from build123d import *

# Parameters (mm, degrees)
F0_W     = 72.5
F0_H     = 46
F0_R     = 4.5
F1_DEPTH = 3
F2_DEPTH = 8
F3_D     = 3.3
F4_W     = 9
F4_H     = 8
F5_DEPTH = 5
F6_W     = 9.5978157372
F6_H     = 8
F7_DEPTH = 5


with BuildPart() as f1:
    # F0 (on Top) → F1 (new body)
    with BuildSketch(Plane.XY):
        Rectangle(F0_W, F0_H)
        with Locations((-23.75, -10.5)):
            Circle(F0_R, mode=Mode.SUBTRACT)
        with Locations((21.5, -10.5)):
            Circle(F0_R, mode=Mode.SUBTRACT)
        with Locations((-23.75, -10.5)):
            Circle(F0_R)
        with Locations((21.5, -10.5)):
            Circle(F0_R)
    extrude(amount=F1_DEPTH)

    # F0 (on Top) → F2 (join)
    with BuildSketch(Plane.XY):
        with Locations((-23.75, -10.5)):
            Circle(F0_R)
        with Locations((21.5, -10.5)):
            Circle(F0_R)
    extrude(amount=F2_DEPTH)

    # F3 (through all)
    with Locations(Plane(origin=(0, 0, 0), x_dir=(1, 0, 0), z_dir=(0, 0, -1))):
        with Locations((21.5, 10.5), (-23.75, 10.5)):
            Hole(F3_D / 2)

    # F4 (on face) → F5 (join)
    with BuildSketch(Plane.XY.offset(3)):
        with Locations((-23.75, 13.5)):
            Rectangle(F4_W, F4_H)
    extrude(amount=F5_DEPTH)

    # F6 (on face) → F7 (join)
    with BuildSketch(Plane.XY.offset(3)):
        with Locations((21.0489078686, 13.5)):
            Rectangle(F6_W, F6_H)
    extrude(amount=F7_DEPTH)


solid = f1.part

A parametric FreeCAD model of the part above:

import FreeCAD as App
import Part
import Sketcher
from FreeCAD import Vector

doc = App.newDocument("Part")
body = doc.addObject("PartDesign::Body", "Body")

sketch1 = body.newObject("Sketcher::SketchObject", "Sketch")
sketch1.AttachmentSupport = (doc.getObject("XY_Plane"), [""])
sketch1.MapMode = "FlatFace"
sketch1.addGeometry(Part.LineSegment(Vector(-36, 23, 0), Vector(-36, -23, 0)), False)
sketch1.addGeometry(Part.LineSegment(Vector(-36, -23, 0), Vector(36, -23, 0)), False)
sketch1.addGeometry(Part.LineSegment(Vector(36, -23, 0), Vector(36, 23, 0)), False)
sketch1.addGeometry(Part.LineSegment(Vector(36, 23, 0), Vector(-36, 23, 0)), False)
sketch1.addConstraint(Sketcher.Constraint("Coincident", 0, 2, 1, 1))
sketch1.addConstraint(Sketcher.Constraint("Coincident", 1, 2, 2, 1))
sketch1.addConstraint(Sketcher.Constraint("Coincident", 2, 2, 3, 1))
sketch1.addConstraint(Sketcher.Constraint("Coincident", 3, 2, 0, 1))
sketch1.addConstraint(Sketcher.Constraint("Vertical", 0))
sketch1.addConstraint(Sketcher.Constraint("Horizontal", 1))
sketch1.addConstraint(Sketcher.Constraint("Vertical", 2))
sketch1.addConstraint(Sketcher.Constraint("Horizontal", 3))
sketch1.addConstraint(Sketcher.Constraint("Symmetric", 0, 2, 2, 2, -1, 1))
sketch1.addConstraint(Sketcher.Constraint("DistanceY", 0, 2, 0, 1, 46.0))
sketch1.addConstraint(Sketcher.Constraint("DistanceX", 1, 1, 1, 2, 72.5))
pad1 = body.newObject("PartDesign::Pad", "Pad")
pad1.Profile = sketch1
pad1.Length = 3

sketch2 = body.newObject("Sketcher::SketchObject", "Sketch001")
sketch2.AttachmentSupport = (doc.getObject("XY_Plane"), [""])
sketch2.MapMode = "FlatFace"
sketch2.addGeometry(Part.Circle(Vector(-23.8, -10.5, 0), Vector(0, 0, 1), 4.5), False)
sketch2.addGeometry(Part.Circle(Vector(21.5, -10.5, 0), Vector(0, 0, 1), 4.5), False)
sketch2.addConstraint(Sketcher.Constraint("Equal", 0, 1))
sketch2.addConstraint(Sketcher.Constraint("Horizontal", 0, 3, 1, 3))
sketch2.addConstraint(Sketcher.Constraint("Diameter", 0, 9.0))
sketch2.addConstraint(Sketcher.Constraint("DistanceY", 0, 3, -1, 1, 10.5))
sketch2.addConstraint(Sketcher.Constraint("DistanceX", -1, 1, 1, 3, 21.5))
sketch2.addConstraint(Sketcher.Constraint("DistanceX", 0, 3, -1, 1, 23.75))
pad2 = body.newObject("PartDesign::Pad", "Pad001")
pad2.Profile = sketch2
pad2.Length = 8

sketch3 = body.newObject("Sketcher::SketchObject", "Sketch002")
sketch3.AttachmentSupport = (doc.getObject("XY_Plane"), [""])
sketch3.MapMode = "FlatFace"
sketch3.addGeometry(Part.Circle(Vector(21.5, -10.5, 0), Vector(0, 0, 1), 1.6), False)
sketch3.addGeometry(Part.Circle(Vector(-23.8, -10.5, 0), Vector(0, 0, 1), 1.6), False)
sketch3.addConstraint(Sketcher.Constraint("Equal", 0, 1))
sketch3.addConstraint(Sketcher.Constraint("Horizontal", 0, 3, 1, 3))
sketch3.addConstraint(Sketcher.Constraint("Diameter", 0, 3.3))
sketch3.addConstraint(Sketcher.Constraint("DistanceX", -1, 1, 0, 3, 21.5))
sketch3.addConstraint(Sketcher.Constraint("DistanceY", 0, 3, -1, 1, 10.5))
sketch3.addConstraint(Sketcher.Constraint("DistanceX", 1, 3, -1, 1, 23.75))
doc.recompute()
hole = body.newObject("PartDesign::Hole", "Hole")
hole.Profile = sketch3
hole.ThreadType = "None"
hole.Diameter = 3.3
hole.DepthType = "ThroughAll"
hole.Reversed = True

sketch4 = body.newObject("Sketcher::SketchObject", "Sketch003")
sketch4.AttachmentSupport = (doc.getObject("XY_Plane"), [""])
sketch4.MapMode = "FlatFace"
sketch4.AttachmentOffset = App.Placement(Vector(0, 0, 3), App.Rotation())
sketch4.addGeometry(Part.LineSegment(Vector(-28, 18, 0), Vector(-28, 10, 0)), False)
sketch4.addGeometry(Part.LineSegment(Vector(-28, 10, 0), Vector(-19, 10, 0)), False)
sketch4.addGeometry(Part.LineSegment(Vector(-19, 10, 0), Vector(-19, 18, 0)), False)
sketch4.addGeometry(Part.LineSegment(Vector(-19, 18, 0), Vector(-28, 18, 0)), False)
sketch4.addConstraint(Sketcher.Constraint("Coincident", 0, 2, 1, 1))
sketch4.addConstraint(Sketcher.Constraint("Coincident", 1, 2, 2, 1))
sketch4.addConstraint(Sketcher.Constraint("Coincident", 2, 2, 3, 1))
sketch4.addConstraint(Sketcher.Constraint("Coincident", 3, 2, 0, 1))
sketch4.addConstraint(Sketcher.Constraint("Vertical", 0))
sketch4.addConstraint(Sketcher.Constraint("Horizontal", 1))
sketch4.addConstraint(Sketcher.Constraint("Vertical", 2))
sketch4.addConstraint(Sketcher.Constraint("Horizontal", 3))
sketch4.addConstraint(Sketcher.Constraint("DistanceX", 1, 1, 1, 2, 9.0))
sketch4.addConstraint(Sketcher.Constraint("DistanceY", 0, 2, 0, 1, 8.0))
sketch4.addConstraint(Sketcher.Constraint("DistanceY", -1, 1, 0, 2, 9.5))
sketch4.addConstraint(Sketcher.Constraint("DistanceX", 0, 2, -1, 1, 28.25))
pad3 = body.newObject("PartDesign::Pad", "Pad002")
pad3.Profile = sketch4
pad3.Length = 5

sketch5 = body.newObject("Sketcher::SketchObject", "Sketch004")
sketch5.AttachmentSupport = (doc.getObject("XY_Plane"), [""])
sketch5.MapMode = "FlatFace"
sketch5.AttachmentOffset = App.Placement(Vector(0, 0, 3), App.Rotation())
sketch5.addGeometry(Part.LineSegment(Vector(16, 18, 0), Vector(16, 10, 0)), False)
sketch5.addGeometry(Part.LineSegment(Vector(16, 10, 0), Vector(26, 10, 0)), False)
sketch5.addGeometry(Part.LineSegment(Vector(26, 10, 0), Vector(26, 18, 0)), False)
sketch5.addGeometry(Part.LineSegment(Vector(26, 18, 0), Vector(16, 18, 0)), False)
sketch5.addConstraint(Sketcher.Constraint("Coincident", 0, 2, 1, 1))
sketch5.addConstraint(Sketcher.Constraint("Coincident", 1, 2, 2, 1))
sketch5.addConstraint(Sketcher.Constraint("Coincident", 2, 2, 3, 1))
sketch5.addConstraint(Sketcher.Constraint("Coincident", 3, 2, 0, 1))
sketch5.addConstraint(Sketcher.Constraint("Vertical", 0))
sketch5.addConstraint(Sketcher.Constraint("Horizontal", 1))
sketch5.addConstraint(Sketcher.Constraint("Vertical", 2))
sketch5.addConstraint(Sketcher.Constraint("Horizontal", 3))
sketch5.addConstraint(Sketcher.Constraint("DistanceY", 0, 2, 0, 1, 8.0))
sketch5.addConstraint(Sketcher.Constraint("DistanceY", -1, 1, 0, 2, 9.5))
sketch5.addConstraint(Sketcher.Constraint("DistanceX", -1, 1, 0, 2, 16.25))
sketch5.addConstraint(Sketcher.Constraint("DistanceX", 1, 1, 1, 2, 9.597816))
pad4 = body.newObject("PartDesign::Pad", "Pad003")
pad4.Profile = sketch5
pad4.Length = 5

doc.recompute()
